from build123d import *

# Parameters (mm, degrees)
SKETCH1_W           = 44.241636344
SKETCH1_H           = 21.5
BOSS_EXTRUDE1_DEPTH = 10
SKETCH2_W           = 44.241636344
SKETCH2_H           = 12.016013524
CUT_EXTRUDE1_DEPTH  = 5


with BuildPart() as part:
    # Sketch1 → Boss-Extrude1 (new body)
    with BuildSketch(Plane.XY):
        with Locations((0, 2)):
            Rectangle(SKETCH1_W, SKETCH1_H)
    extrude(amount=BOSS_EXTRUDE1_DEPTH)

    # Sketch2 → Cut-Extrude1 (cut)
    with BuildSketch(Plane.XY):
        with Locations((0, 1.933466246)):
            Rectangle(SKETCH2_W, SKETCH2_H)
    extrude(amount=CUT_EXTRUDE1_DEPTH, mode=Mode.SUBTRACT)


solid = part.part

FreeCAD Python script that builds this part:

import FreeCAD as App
import Part
import Sketcher

V = App.Vector
Q = App.Units.Quantity

doc = App.newDocument("Part")
body = doc.addObject("PartDesign::Body", "Body")

# Sketch on XY plane
sketch1 = body.newObject("Sketcher::SketchObject", "Sketch")
sketch1.AttachmentSupport = (doc.getObject("XY_Plane"), [""])
sketch1.MapMode = "FlatFace"
sketch1.addGeometry([
    Part.LineSegment(V(-22, 13, 0), V(-22, -9, 0)),
    Part.LineSegment(V(-22, -9, 0), V(22, -9, 0)),
    Part.LineSegment(V(22, -9, 0), V(22, 13, 0)),
    Part.LineSegment(V(22, 13, 0), V(-22, 13, 0)),
], False)
sketch1.addConstraint([
    Sketcher.Constraint("Coincident", 0, 2, 1, 1),
    Sketcher.Constraint("Coincident", 1, 2, 2, 1),
    Sketcher.Constraint("Coincident", 2, 2, 3, 1),
    Sketcher.Constraint("Coincident", 3, 2, 0, 1),
    Sketcher.Constraint("Vertical", 0),
    Sketcher.Constraint("Horizontal", 1),
    Sketcher.Constraint("Vertical", 2),
    Sketcher.Constraint("Horizontal", 3),
    Sketcher.Constraint("DistanceY", 0, 2, 0, 1, Q("21.5 mm")),
    Sketcher.Constraint("DistanceY", 0, 2, -1, 1, Q("8.75 mm")),
    Sketcher.Constraint("DistanceX", 1, 1, 1, 2, Q("44.241636 mm")),
    Sketcher.Constraint("DistanceX", 0, 2, -1, 1, Q("22.120818 mm")),
])
pad1 = body.newObject("PartDesign::Pad", "Pad")
pad1.Profile = sketch1
pad1.Length = 10

# Sketch on XY plane
sketch2 = body.newObject("Sketcher::SketchObject", "Sketch001")
sketch2.AttachmentSupport = (doc.getObject("XY_Plane"), [""])
sketch2.MapMode = "FlatFace"
sketch2.addGeometry([
    Part.LineSegment(V(-22, 8, 0), V(-22, -4, 0)),
    Part.LineSegment(V(-22, -4, 0), V(22, -4, 0)),
    Part.LineSegment(V(22, -4, 0), V(22, 8, 0)),
    Part.LineSegment(V(22, 8, 0), V(-22, 8, 0)),
], False)
sketch2.addConstraint([
    Sketcher.Constraint("Coincident", 0, 2, 1, 1),
    Sketcher.Constraint("Coincident", 1, 2, 2, 1),
    Sketcher.Constraint("Coincident", 2, 2, 3, 1),
    Sketcher.Constraint("Coincident", 3, 2, 0, 1),
    Sketcher.Constraint("Vertical", 0),
    Sketcher.Constraint("Horizontal", 1),
    Sketcher.Constraint("Vertical", 2),
    Sketcher.Constraint("Horizontal", 3),
    Sketcher.Constraint("DistanceX", 1, 1, 1, 2, Q("44.241636 mm")),
    Sketcher.Constraint("DistanceY", 0, 2, 0, 1, Q("12.016014 mm")),
    Sketcher.Constraint("DistanceX", 0, 2, -1, 1, Q("22.120818 mm")),
    Sketcher.Constraint("DistanceY", 0, 2, -1, 1, Q("4.074541 mm")),
])
pocket1 = body.newObject("PartDesign::Pocket", "Pocket")
pocket1.Profile = sketch2
pocket1.Length = 5
pocket1.Reversed = True

doc.recompute()
